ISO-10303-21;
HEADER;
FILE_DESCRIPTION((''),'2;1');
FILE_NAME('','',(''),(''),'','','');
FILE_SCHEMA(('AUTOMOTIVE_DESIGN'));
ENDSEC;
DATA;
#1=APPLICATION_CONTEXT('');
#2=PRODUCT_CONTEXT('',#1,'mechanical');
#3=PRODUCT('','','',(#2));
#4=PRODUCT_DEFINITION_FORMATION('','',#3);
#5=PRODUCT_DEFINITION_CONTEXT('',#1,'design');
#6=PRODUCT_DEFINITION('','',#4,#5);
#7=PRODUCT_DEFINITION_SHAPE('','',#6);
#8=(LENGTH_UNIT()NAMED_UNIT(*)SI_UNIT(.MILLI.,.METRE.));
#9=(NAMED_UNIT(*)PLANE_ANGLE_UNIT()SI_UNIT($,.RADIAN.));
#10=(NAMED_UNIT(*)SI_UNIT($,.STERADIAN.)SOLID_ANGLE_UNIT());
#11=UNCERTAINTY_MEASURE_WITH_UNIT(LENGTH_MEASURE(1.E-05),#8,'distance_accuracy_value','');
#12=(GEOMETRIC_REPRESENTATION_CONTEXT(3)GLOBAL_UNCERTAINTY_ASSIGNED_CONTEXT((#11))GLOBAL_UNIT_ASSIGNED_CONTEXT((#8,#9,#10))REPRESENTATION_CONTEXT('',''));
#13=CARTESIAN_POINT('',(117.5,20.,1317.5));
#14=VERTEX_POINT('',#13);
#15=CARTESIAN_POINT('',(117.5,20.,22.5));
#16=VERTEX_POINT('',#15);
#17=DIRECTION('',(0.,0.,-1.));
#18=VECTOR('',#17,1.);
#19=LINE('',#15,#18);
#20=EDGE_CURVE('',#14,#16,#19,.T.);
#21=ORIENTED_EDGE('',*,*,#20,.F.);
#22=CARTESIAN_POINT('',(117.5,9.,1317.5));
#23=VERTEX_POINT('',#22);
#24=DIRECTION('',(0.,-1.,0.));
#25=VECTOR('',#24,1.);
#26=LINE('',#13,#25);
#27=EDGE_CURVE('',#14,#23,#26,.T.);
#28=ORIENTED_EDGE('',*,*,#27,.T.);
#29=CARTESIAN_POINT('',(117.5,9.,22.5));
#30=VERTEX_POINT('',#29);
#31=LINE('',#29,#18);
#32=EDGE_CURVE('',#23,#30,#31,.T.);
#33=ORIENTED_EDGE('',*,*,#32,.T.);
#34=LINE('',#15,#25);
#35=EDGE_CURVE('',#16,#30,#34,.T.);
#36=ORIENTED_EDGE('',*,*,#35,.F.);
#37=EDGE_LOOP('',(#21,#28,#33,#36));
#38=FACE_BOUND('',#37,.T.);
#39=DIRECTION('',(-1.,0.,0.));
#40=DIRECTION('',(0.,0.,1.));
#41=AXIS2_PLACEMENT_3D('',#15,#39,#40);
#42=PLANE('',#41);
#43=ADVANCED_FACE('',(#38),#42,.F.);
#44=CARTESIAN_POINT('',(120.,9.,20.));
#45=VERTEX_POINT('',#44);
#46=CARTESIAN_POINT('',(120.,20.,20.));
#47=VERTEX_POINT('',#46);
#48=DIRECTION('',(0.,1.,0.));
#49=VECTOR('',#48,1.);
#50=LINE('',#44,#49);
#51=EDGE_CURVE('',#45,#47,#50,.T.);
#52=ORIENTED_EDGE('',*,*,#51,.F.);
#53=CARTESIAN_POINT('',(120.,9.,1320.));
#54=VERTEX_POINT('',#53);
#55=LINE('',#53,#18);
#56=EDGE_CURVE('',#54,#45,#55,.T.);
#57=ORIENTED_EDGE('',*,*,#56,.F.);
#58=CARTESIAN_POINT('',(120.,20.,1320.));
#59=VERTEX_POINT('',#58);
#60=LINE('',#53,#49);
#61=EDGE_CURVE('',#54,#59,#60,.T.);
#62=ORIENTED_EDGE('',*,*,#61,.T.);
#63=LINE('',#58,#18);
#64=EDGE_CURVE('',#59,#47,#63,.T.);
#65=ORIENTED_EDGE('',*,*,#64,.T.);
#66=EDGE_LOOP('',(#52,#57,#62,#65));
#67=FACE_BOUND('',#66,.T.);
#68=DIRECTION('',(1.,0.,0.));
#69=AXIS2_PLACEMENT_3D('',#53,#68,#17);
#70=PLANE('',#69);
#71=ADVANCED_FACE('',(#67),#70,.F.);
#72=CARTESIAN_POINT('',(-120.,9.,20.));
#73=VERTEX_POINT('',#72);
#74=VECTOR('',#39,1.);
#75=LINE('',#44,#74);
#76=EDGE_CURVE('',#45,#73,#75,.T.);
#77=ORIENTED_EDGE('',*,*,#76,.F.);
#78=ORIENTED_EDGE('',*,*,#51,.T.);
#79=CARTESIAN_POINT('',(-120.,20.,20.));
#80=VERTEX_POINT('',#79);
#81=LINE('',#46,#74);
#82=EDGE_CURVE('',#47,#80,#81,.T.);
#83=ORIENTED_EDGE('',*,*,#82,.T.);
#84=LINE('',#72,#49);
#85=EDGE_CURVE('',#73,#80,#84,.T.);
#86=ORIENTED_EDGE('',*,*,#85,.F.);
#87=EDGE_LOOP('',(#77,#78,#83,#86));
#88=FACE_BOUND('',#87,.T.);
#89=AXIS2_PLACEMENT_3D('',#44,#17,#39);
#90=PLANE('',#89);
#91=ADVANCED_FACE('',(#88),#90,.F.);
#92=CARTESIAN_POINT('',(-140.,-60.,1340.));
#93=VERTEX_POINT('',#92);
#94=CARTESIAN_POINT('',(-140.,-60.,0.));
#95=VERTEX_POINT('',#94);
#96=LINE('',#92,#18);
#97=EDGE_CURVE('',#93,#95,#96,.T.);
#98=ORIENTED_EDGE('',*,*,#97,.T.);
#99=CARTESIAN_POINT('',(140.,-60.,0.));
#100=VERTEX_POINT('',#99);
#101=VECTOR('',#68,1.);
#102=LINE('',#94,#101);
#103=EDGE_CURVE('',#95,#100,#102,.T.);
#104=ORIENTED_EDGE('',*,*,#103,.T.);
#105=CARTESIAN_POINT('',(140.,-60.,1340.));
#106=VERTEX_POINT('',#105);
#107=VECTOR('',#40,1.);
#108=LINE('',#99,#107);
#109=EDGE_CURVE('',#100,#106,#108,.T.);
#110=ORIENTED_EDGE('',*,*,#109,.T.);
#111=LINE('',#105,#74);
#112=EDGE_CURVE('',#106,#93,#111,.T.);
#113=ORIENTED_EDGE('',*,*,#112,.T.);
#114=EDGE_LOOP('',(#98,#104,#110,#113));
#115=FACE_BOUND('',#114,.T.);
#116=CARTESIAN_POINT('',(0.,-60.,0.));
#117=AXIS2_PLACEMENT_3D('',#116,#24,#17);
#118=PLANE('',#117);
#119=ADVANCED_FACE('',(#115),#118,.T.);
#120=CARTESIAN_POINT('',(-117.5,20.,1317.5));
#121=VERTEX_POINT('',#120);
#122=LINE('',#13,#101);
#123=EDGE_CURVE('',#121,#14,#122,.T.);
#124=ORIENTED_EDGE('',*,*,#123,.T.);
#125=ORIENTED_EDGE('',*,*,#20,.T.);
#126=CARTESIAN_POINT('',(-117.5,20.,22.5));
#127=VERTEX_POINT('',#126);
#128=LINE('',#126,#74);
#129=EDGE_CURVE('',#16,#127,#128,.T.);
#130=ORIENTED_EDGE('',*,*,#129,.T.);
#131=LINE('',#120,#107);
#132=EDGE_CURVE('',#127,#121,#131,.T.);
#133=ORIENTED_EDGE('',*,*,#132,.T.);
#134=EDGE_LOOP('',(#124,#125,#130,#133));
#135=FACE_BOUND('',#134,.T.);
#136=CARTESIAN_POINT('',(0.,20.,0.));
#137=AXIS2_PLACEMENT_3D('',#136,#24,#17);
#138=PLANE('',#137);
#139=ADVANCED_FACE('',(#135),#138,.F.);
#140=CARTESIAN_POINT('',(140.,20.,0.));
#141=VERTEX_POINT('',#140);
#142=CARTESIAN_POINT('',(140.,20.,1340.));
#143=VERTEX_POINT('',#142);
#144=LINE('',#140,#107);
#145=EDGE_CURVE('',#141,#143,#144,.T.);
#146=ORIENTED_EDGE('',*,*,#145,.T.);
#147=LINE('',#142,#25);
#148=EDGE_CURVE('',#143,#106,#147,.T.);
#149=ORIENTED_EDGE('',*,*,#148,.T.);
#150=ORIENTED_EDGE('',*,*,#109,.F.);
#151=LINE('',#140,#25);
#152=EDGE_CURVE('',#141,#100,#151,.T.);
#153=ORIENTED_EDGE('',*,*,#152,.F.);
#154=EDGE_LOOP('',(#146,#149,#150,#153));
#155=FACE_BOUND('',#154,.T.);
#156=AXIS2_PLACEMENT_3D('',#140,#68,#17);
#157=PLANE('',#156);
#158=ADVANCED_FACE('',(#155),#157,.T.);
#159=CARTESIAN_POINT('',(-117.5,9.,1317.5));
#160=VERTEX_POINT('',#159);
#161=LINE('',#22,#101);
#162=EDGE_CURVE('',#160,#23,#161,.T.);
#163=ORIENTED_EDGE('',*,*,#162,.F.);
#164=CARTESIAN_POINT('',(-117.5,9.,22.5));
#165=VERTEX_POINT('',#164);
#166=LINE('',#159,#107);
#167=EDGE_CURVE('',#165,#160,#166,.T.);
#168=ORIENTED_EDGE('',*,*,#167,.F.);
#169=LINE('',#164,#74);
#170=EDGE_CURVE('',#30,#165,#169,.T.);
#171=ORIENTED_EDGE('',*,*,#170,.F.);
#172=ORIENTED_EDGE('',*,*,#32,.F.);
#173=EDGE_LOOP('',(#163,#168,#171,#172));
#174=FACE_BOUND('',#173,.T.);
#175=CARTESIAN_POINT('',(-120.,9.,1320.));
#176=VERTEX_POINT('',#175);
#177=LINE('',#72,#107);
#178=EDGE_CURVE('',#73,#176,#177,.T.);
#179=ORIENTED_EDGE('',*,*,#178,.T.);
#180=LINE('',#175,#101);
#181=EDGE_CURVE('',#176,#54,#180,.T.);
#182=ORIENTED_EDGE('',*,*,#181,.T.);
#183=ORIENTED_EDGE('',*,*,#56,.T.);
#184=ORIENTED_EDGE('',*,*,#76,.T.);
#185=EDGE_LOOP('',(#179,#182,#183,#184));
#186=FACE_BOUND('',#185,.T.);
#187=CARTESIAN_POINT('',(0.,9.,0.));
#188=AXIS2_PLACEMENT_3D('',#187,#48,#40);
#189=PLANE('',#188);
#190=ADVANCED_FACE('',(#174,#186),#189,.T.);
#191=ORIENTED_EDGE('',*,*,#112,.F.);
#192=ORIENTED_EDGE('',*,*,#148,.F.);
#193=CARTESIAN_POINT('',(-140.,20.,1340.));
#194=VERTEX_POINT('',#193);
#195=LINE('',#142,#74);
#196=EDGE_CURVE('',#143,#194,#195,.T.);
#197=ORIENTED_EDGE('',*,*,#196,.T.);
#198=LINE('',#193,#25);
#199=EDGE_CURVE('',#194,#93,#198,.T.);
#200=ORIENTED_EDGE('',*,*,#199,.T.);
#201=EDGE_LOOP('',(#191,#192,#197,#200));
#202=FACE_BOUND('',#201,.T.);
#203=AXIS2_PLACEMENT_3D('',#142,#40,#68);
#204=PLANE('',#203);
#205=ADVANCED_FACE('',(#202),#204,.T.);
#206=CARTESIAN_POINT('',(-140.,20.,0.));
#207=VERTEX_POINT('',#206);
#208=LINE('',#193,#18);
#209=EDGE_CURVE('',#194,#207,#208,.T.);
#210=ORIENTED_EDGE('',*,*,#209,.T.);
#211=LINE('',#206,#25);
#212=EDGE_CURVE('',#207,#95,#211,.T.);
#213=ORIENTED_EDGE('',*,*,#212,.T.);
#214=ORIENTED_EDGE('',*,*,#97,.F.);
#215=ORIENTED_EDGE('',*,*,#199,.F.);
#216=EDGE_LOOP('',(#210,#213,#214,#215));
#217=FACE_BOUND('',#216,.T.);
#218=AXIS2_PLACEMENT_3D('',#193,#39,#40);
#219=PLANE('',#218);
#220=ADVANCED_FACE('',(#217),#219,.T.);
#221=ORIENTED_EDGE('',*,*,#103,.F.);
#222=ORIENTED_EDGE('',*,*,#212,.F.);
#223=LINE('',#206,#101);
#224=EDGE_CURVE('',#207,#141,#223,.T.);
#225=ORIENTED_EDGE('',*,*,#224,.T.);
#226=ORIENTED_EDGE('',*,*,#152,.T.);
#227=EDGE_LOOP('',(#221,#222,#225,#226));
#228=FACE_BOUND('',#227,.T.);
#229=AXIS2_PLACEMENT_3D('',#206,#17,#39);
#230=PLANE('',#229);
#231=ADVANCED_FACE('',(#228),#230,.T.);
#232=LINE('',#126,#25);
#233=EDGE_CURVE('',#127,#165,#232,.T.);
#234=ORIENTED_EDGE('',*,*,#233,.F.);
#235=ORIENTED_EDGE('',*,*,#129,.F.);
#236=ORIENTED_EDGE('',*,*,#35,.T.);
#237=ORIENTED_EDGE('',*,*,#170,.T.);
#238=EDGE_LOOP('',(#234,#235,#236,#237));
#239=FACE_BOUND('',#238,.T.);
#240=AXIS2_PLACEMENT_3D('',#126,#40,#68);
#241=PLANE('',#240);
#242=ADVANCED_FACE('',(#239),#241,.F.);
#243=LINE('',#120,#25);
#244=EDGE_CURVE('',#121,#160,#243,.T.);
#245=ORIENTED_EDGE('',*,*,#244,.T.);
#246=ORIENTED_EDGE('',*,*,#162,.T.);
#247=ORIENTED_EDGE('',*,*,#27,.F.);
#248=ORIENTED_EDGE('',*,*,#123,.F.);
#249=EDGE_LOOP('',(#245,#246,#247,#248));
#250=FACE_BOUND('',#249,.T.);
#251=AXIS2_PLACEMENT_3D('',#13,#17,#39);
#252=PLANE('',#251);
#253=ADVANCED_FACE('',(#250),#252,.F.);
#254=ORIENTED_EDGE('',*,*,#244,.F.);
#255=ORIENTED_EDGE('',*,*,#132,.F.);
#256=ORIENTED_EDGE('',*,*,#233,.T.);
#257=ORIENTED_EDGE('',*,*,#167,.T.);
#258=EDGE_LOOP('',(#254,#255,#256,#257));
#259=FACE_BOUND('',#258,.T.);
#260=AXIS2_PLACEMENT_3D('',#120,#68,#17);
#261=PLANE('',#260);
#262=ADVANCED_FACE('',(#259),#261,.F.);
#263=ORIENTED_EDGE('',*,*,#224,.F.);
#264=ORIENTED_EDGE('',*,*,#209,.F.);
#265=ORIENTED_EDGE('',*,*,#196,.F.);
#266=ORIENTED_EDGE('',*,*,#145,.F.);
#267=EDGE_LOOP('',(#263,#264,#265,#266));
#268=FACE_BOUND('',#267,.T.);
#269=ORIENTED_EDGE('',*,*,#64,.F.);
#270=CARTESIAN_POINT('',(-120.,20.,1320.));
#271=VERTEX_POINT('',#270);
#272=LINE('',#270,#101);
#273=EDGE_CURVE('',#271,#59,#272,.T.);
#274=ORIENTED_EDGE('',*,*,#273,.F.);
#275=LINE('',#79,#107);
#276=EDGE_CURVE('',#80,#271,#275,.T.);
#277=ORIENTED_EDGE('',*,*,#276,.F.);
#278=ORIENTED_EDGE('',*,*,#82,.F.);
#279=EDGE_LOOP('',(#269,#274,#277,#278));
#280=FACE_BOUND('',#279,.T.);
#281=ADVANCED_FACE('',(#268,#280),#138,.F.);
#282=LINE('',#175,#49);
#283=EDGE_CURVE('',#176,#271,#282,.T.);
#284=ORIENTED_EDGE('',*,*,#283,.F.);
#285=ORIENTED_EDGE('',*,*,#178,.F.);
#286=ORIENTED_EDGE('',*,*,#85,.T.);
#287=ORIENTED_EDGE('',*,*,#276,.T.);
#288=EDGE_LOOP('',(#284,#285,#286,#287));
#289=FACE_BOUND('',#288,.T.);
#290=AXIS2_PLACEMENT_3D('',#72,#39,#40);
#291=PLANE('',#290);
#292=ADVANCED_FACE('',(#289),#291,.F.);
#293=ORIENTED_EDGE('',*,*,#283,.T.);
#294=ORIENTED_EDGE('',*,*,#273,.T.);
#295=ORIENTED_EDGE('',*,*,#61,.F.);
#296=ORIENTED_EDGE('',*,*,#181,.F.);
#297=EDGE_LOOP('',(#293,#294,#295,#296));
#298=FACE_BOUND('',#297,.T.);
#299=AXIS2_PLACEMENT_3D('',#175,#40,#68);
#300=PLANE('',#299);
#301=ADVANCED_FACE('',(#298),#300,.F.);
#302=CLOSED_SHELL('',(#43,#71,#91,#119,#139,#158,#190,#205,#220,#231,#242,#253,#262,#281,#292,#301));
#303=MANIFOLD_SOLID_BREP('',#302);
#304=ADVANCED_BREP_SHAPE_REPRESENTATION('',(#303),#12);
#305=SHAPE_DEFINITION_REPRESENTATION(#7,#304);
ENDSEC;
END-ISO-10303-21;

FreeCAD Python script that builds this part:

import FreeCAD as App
import Part
import Sketcher

doc = App.newDocument("Part")
body = doc.addObject("PartDesign::Body", "Body")

sketch1 = doc.addObject("Sketcher::SketchObject", "Sketch")
body.addObject(sketch1)
sketch1.AttachmentSupport = (doc.XZ_Plane, [""])
sketch1.MapMode = "FlatFace"
sketch1.AttachmentOffset = App.Placement(App.Vector(0, 0, 60), App.Rotation())
sketch1.addGeometry(Part.LineSegment(App.Vector(-140, 1340, 0), App.Vector(-140, 0, 0)), False)
sketch1.addGeometry(Part.LineSegment(App.Vector(-140, 0, 0), App.Vector(140, 0, 0)), False)
sketch1.addGeometry(Part.LineSegment(App.Vector(140, 0, 0), App.Vector(140, 1340, 0)), False)
sketch1.addGeometry(Part.LineSegment(App.Vector(140, 1340, 0), App.Vector(-140, 1340, 0)), False)
sketch1.addConstraint(Sketcher.Constraint("Coincident", 0, 2, 1, 1))
sketch1.addConstraint(Sketcher.Constraint("Coincident", 1, 2, 2, 1))
sketch1.addConstraint(Sketcher.Constraint("Coincident", 2, 2, 3, 1))
sketch1.addConstraint(Sketcher.Constraint("Coincident", 3, 2, 0, 1))
sketch1.addConstraint(Sketcher.Constraint("Vertical", 0))
sketch1.addConstraint(Sketcher.Constraint("Horizontal", 1))
sketch1.addConstraint(Sketcher.Constraint("Vertical", 2))
sketch1.addConstraint(Sketcher.Constraint("Horizontal", 3))
sketch1.addConstraint(Sketcher.Constraint("Symmetric", 0, 2, 1, 2, -1, 1))
sketch1.addConstraint(Sketcher.Constraint("DistanceX", 1, 1, 1, 2, 280.0))
sketch1.addConstraint(Sketcher.Constraint("DistanceY", 0, 2, 0, 1, 1340.0))
pad1 = doc.addObject("PartDesign::Pad", "Pad")
body.addObject(pad1)
pad1.Profile = sketch1
pad1.Length = 80
pad1.Reversed = True

sketch2 = doc.addObject("Sketcher::SketchObject", "Sketch001")
body.addObject(sketch2)
sketch2.AttachmentSupport = (doc.XZ_Plane, [""])
sketch2.MapMode = "FlatFace"
sketch2.AttachmentOffset = App.Placement(App.Vector(0, 0, -20), App.Rotation())
sketch2.addGeometry(Part.LineSegment(App.Vector(120, 1320, 0), App.Vector(120, 20, 0)), False)
sketch2.addGeometry(Part.LineSegment(App.Vector(120, 20, 0), App.Vector(-120, 20, 0)), False)
sketch2.addGeometry(Part.LineSegment(App.Vector(-120, 20, 0), App.Vector(-120, 1320, 0)), False)
sketch2.addGeometry(Part.LineSegment(App.Vector(-120, 1320, 0), App.Vector(120, 1320, 0)), False)
sketch2.addConstraint(Sketcher.Constraint("Coincident", 0, 2, 1, 1))
sketch2.addConstraint(Sketcher.Constraint("Coincident", 1, 2, 2, 1))
sketch2.addConstraint(Sketcher.Constraint("Coincident", 2, 2, 3, 1))
sketch2.addConstraint(Sketcher.Constraint("Coincident", 3, 2, 0, 1))
sketch2.addConstraint(Sketcher.Constraint("Vertical", 0))
sketch2.addConstraint(Sketcher.Constraint("Horizontal", 1))
sketch2.addConstraint(Sketcher.Constraint("Vertical", 2))
sketch2.addConstraint(Sketcher.Constraint("Horizontal", 3))
sketch2.addConstraint(Sketcher.Constraint("DistanceX", 1, 2, 1, 1, 240.0))
sketch2.addConstraint(Sketcher.Constraint("DistanceY", 0, 2, 0, 1, 1300.0))
sketch2.addConstraint(Sketcher.Constraint("DistanceX", -1, 1, 0, 2, 120.0))
sketch2.addConstraint(Sketcher.Constraint("DistanceY", -1, 1, 0, 2, 20.0))
pocket1 = doc.addObject("PartDesign::Pocket", "Pocket")
body.addObject(pocket1)
pocket1.Profile = sketch2
pocket1.Length = 11
pocket1.Reversed = True

sketch3 = doc.addObject("Sketcher::SketchObject", "Sketch002")
body.addObject(sketch3)
sketch3.AttachmentSupport = (doc.XZ_Plane, [""])
sketch3.MapMode = "FlatFace"
sketch3.AttachmentOffset = App.Placement(App.Vector(0, 0, -9), App.Rotation())
sketch3.addGeometry(Part.LineSegment(App.Vector(118, 1318, 0), App.Vector(118, 22, 0)), False)
sketch3.addGeometry(Part.LineSegment(App.Vector(118, 22, 0), App.Vector(-118, 22, 0)), False)
sketch3.addGeometry(Part.LineSegment(App.Vector(-118, 22, 0), App.Vector(-118, 1318, 0)), False)
sketch3.addGeometry(Part.LineSegment(App.Vector(-118, 1318, 0), App.Vector(118, 1318, 0)), False)
sketch3.addConstraint(Sketcher.Constraint("Coincident", 0, 2, 1, 1))
sketch3.addConstraint(Sketcher.Constraint("Coincident", 1, 2, 2, 1))
sketch3.addConstraint(Sketcher.Constraint("Coincident", 2, 2, 3, 1))
sketch3.addConstraint(Sketcher.Constraint("Coincident", 3, 2, 0, 1))
sketch3.addConstraint(Sketcher.Constraint("Vertical", 0))
sketch3.addConstraint(Sketcher.Constraint("Horizontal", 1))
sketch3.addConstraint(Sketcher.Constraint("Vertical", 2))
sketch3.addConstraint(Sketcher.Constraint("Horizontal", 3))
sketch3.addConstraint(Sketcher.Constraint("DistanceX", 1, 2, 1, 1, 235.0))
sketch3.addConstraint(Sketcher.Constraint("DistanceY", 0, 2, 0, 1, 1295.0))
sketch3.addConstraint(Sketcher.Constraint("DistanceX", -1, 1, 0, 2, 117.5))
sketch3.addConstraint(Sketcher.Constraint("DistanceY", -1, 1, 0, 2, 22.5))
pad2 = doc.addObject("PartDesign::Pad", "Pad001")
body.addObject(pad2)
pad2.Profile = sketch3
pad2.Length = 11
pad2.Reversed = True

doc.recompute()
